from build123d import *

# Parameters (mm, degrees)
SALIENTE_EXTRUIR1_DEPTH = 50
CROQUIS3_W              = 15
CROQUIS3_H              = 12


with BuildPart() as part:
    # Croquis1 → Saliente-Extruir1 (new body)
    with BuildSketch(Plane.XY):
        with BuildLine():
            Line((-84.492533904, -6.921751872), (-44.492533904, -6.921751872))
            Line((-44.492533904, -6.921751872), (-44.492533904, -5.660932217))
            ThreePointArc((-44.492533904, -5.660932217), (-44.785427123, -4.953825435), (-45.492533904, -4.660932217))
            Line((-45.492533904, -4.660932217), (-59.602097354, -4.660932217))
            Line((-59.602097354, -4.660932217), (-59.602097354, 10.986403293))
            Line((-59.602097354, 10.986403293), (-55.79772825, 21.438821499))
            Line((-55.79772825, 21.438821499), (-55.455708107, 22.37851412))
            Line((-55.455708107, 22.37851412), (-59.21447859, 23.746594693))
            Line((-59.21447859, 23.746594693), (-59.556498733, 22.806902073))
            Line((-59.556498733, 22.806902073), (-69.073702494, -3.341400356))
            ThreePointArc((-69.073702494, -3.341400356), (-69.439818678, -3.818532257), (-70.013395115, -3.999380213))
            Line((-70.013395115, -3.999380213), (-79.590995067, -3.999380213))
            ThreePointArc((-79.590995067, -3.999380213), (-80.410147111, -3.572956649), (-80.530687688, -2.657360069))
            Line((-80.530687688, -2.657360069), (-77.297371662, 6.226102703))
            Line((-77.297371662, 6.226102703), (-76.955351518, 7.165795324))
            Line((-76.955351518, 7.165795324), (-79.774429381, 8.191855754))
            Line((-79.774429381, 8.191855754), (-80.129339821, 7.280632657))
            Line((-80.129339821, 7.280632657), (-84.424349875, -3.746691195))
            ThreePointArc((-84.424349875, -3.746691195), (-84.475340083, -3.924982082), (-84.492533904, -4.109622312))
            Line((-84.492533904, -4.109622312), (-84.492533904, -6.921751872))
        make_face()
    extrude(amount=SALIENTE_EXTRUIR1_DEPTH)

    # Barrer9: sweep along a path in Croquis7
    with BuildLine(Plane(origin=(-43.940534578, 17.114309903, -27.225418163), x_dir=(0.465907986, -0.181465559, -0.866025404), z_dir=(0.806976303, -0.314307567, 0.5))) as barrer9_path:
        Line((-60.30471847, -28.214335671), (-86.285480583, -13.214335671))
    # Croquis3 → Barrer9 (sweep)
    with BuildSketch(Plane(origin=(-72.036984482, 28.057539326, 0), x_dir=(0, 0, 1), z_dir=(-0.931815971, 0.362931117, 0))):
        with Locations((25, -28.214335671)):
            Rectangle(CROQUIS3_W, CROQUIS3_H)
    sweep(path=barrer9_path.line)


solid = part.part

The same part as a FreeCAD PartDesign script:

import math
import FreeCAD as App
import Part
import Sketcher
Q = App.Units.Quantity

doc = App.newDocument("Part")
params = doc.addObject("Spreadsheet::Sheet", "Params")
for row, (alias, value) in enumerate([
    ("sketch1_radius", "1 mm"),
    ("sketch1_width", "40 mm"),
    ("sketch1_length", "1 mm"),
    ("sketch1_length2", "4 mm"),
    ("sketch1_length3", "3 mm"),
    ("pad1_length", "50 mm"),
    ("sketch2_width", "15 mm"),
    ("sketch2_height", "12 mm"),
    ("sketch3_length", "30 mm"),
], start=1):
    params.set(f"A{row}", alias)
    params.set(f"B{row}", "=" + value)
    params.setAlias(f"B{row}", alias)

body = doc.addObject("PartDesign::Body", "Body")

# Sketch on XY plane
sketch1 = doc.addObject("Sketcher::SketchObject", "Sketch")
body.addObject(sketch1)
sketch1.AttachmentSupport = (doc.XY_Plane, [""])
sketch1.MapMode = "FlatFace"
sketch1.addGeometry(Part.LineSegment(App.Vector(-84.49, -6.92, 0), App.Vector(-44.49, -6.92, 0)), False)
sketch1.addGeometry(Part.LineSegment(App.Vector(-44.49, -6.92, 0), App.Vector(-44.49, -5.66, 0)), False)
sketch1.addGeometry(Part.ArcOfCircle(Part.Circle(App.Vector(-45.49, -5.66, 0), App.Vector(0, 0, 1), 1), math.radians(0), math.radians(90)), False)
sketch1.addGeometry(Part.LineSegment(App.Vector(-45.49, -4.66, 0), App.Vector(-59.6, -4.66, 0)), False)
sketch1.addGeometry(Part.LineSegment(App.Vector(-59.6, -4.66, 0), App.Vector(-59.6, 10.99, 0)), False)
sketch1.addGeometry(Part.LineSegment(App.Vector(-59.6, 10.99, 0), App.Vector(-55.8, 21.44, 0)), False)
sketch1.addGeometry(Part.LineSegment(App.Vector(-55.8, 21.44, 0), App.Vector(-55.46, 22.38, 0)), False)
sketch1.addGeometry(Part.LineSegment(App.Vector(-55.46, 22.38, 0), App.Vector(-59.21, 23.75, 0)), False)
sketch1.addGeometry(Part.LineSegment(App.Vector(-59.21, 23.75, 0), App.Vector(-59.56, 22.81, 0)), False)
sketch1.addGeometry(Part.LineSegment(App.Vector(-59.56, 22.81, 0), App.Vector(-69.07, -3.34, 0)), False)
sketch1.addGeometry(Part.ArcOfCircle(Part.Circle(App.Vector(-70.01, -3, 0), App.Vector(0, 0, 1), 1), math.radians(-90), math.radians(-20)), False)
sketch1.addGeometry(Part.LineSegment(App.Vector(-70.01, -4, 0), App.Vector(-79.59, -4, 0)), False)
sketch1.addGeometry(Part.ArcOfCircle(Part.Circle(App.Vector(-79.59, -3, 0), App.Vector(0, 0, 1), 1), math.radians(160), math.radians(270)), False)
sketch1.addGeometry(Part.LineSegment(App.Vector(-80.53, -2.66, 0), App.Vector(-77.3, 6.23, 0)), False)
sketch1.addGeometry(Part.LineSegment(App.Vector(-77.3, 6.23, 0), App.Vector(-76.96, 7.17, 0)), False)
sketch1.addGeometry(Part.LineSegment(App.Vector(-76.96, 7.17, 0), App.Vector(-79.77, 8.19, 0)), False)
sketch1.addGeometry(Part.LineSegment(App.Vector(-79.77, 8.19, 0), App.Vector(-80.13, 7.28, 0)), False)
sketch1.addGeometry(Part.LineSegment(App.Vector(-80.13, 7.28, 0), App.Vector(-84.42, -3.75, 0)), False)
sketch1.addGeometry(Part.ArcOfCircle(Part.Circle(App.Vector(-83.49, -4.11, 0), App.Vector(0, 0, 1), 1), math.radians(159), math.radians(180)), False)
sketch1.addGeometry(Part.LineSegment(App.Vector(-84.49, -4.11, 0), App.Vector(-84.49, -6.92, 0)), False)
sketch1.addConstraint(Sketcher.Constraint("Coincident", 0, 2, 1, 1))
sketch1.addConstraint(Sketcher.Constraint("Tangent", 1, 2, 2, 1))
sketch1.addConstraint(Sketcher.Constraint("Tangent", 2, 2, 3, 1))
sketch1.addConstraint(Sketcher.Constraint("Coincident", 3, 2, 4, 1))
sketch1.addConstraint(Sketcher.Constraint("Coincident", 4, 2, 5, 1))
sketch1.addConstraint(Sketcher.Constraint("Coincident", 5, 2, 6, 1))
sketch1.addConstraint(Sketcher.Constraint("Coincident", 6, 2, 7, 1))
sketch1.addConstraint(Sketcher.Constraint("Coincident", 7, 2, 8, 1))
sketch1.addConstraint(Sketcher.Constraint("Coincident", 8, 2, 9, 1))
sketch1.addConstraint(Sketcher.Constraint("Tangent", 9, 2, 10, 2))
sketch1.addConstraint(Sketcher.Constraint("Tangent", 10, 1, 11, 1))
sketch1.addConstraint(Sketcher.Constraint("Tangent", 11, 2, 12, 2))
sketch1.addConstraint(Sketcher.Constraint("Tangent", 12, 1, 13, 1))
sketch1.addConstraint(Sketcher.Constraint("Coincident", 13, 2, 14, 1))
sketch1.addConstraint(Sketcher.Constraint("Coincident", 14, 2, 15, 1))
sketch1.addConstraint(Sketcher.Constraint("Coincident", 15, 2, 16, 1))
sketch1.addConstraint(Sketcher.Constraint("Coincident", 16, 2, 17, 1))
sketch1.addConstraint(Sketcher.Constraint("Tangent", 17, 2, 18, 1))
sketch1.addConstraint(Sketcher.Constraint("Tangent", 18, 2, 19, 1))
sketch1.addConstraint(Sketcher.Constraint("Coincident", 19, 2, 0, 1))
sketch1.addConstraint(Sketcher.Constraint("Horizontal", 0))
sketch1.addConstraint(Sketcher.Constraint("Vertical", 1))
sketch1.addConstraint(Sketcher.Constraint("Horizontal", 3))
sketch1.addConstraint(Sketcher.Constraint("Vertical", 4))
sketch1.addConstraint(Sketcher.Constraint("Horizontal", 11))
sketch1.addConstraint(Sketcher.Constraint("Vertical", 19))
sketch1.addConstraint(Sketcher.Constraint("Equal", 2, 10))
sketch1.addConstraint(Sketcher.Constraint("Equal", 10, 12))
sketch1.addConstraint(Sketcher.Constraint("Equal", 12, 18))
sketch1.addConstraint(Sketcher.Constraint("Parallel", 5, 6))
sketch1.addConstraint(Sketcher.Constraint("Perpendicular", 6, 7))
sketch1.addConstraint(Sketcher.Constraint("Perpendicular", 7, 8))
sketch1.addConstraint(Sketcher.Constraint("Parallel", 8, 9))
sketch1.addConstraint(Sketcher.Constraint("Parallel", 9, 13))
sketch1.addConstraint(Sketcher.Constraint("Parallel", 13, 14))
sketch1.addConstraint(Sketcher.Constraint("Perpendicular", 14, 15))
sketch1.addConstraint(Sketcher.Constraint("Parallel", 16, 17))
sketch1.addConstraint(Sketcher.Constraint("Equal", 6, 8))
sketch1.addConstraint(Sketcher.Constraint("Equal", 8, 14))
sketch1.addConstraint(Sketcher.Constraint("Radius", 2, Q("1 mm")))
sketch1.addConstraint(Sketcher.Constraint("DistanceX", 0, 1, 0, 2, Q("40 mm")))
sketch1.addConstraint(Sketcher.Constraint("Angle", 5, Q("70 deg")))
sketch1.addConstraint(Sketcher.Constraint("Distance", 6, Q("1 mm")))
sketch1.addConstraint(Sketcher.Constraint("Distance", 7, Q("4 mm")))
sketch1.addConstraint(Sketcher.Constraint("Distance", 15, Q("3 mm")))
sketch1.addConstraint(Sketcher.Constraint("DistanceX", 11, 2, 11, 1, Q("9.5776 mm")))
sketch1.addConstraint(Sketcher.Constraint("Distance", 16, Q("0.9779 mm")))
sketch1.addConstraint(Sketcher.Constraint("DistanceY", 1, 1, 1, 2, Q("1.26082 mm")))
sketch1.addConstraint(Sketcher.Constraint("DistanceY", 19, 2, 19, 1, Q("2.81213 mm")))
sketch1.addConstraint(Sketcher.Constraint("DistanceX", 8, 2, -1, 1, Q("59.556499 mm")))
sketch1.addConstraint(Sketcher.Constraint("DistanceY", 9, 2, -1, 1, Q("3.3414 mm")))
sketch1.addConstraint(Sketcher.Constraint("DistanceY", 10, 3, 5, 2, Q("24.438202 mm")))
sketch1.addConstraint(Sketcher.Constraint("DistanceX", 4, 2, 8, 2, Q("0.045599 mm")))
sketch1.addConstraint(Sketcher.Constraint("Distance", 17, Q("11.834229 mm")))
sketch1.addConstraint(Sketcher.Constraint("DistanceX", 3, 2, 3, 1, Q("14.109563 mm")))
sketch1.addConstraint(Sketcher.Constraint("DistanceY", 4, 1, 4, 2, Q("15.647336 mm")))
sketch1.setExpression("Constraints[39]", "Params.sketch1_radius")
sketch1.setExpression("Constraints[40]", "Params.sketch1_width")
sketch1.setExpression("Constraints[42]", "Params.sketch1_length")
sketch1.setExpression("Constraints[43]", "Params.sketch1_length2")
sketch1.setExpression("Constraints[44]", "Params.sketch1_length3")
pad1 = doc.addObject("PartDesign::Pad", "Pad")
body.addObject(pad1)
pad1.Profile = sketch1
pad1.setExpression("Length", "Params.pad1_length")

# Sketch on an angled plane
sketch2 = doc.addObject("Sketcher::SketchObject", "Sketch001")
body.addObject(sketch2)
sketch2.Placement = App.Placement(App.Vector(-72.036984, 28.057539, 0), App.Rotation(App.Vector(0, 0, 1), App.Vector(0.362931117, 0.931815971, 0), App.Vector(-0.931815971, 0.362931117, 0), "ZXY"))
sketch2.addGeometry(Part.LineSegment(App.Vector(18, -22, 0), App.Vector(18, -34, 0)), False)
sketch2.addGeometry(Part.LineSegment(App.Vector(18, -34, 0), App.Vector(32, -34, 0)), False)
sketch2.addGeometry(Part.LineSegment(App.Vector(32, -34, 0), App.Vector(32, -22, 0)), False)
sketch2.addGeometry(Part.LineSegment(App.Vector(32, -22, 0), App.Vector(18, -22, 0)), False)
sketch2.addConstraint(Sketcher.Constraint("Coincident", 0, 2, 1, 1))
sketch2.addConstraint(Sketcher.Constraint("Coincident", 1, 2, 2, 1))
sketch2.addConstraint(Sketcher.Constraint("Coincident", 2, 2, 3, 1))
sketch2.addConstraint(Sketcher.Constraint("Coincident", 3, 2, 0, 1))
sketch2.addConstraint(Sketcher.Constraint("Vertical", 0))
sketch2.addConstraint(Sketcher.Constraint("Horizontal", 1))
sketch2.addConstraint(Sketcher.Constraint("Vertical", 2))
sketch2.addConstraint(Sketcher.Constraint("Horizontal", 3))
sketch2.addConstraint(Sketcher.Constraint("DistanceX", 1, 1, 1, 2, Q("15 mm")))
sketch2.addConstraint(Sketcher.Constraint("DistanceY", 0, 2, 0, 1, Q("12 mm")))
sketch2.addConstraint(Sketcher.Constraint("DistanceX", -1, 1, 0, 2, Q("17.5 mm")))
sketch2.addConstraint(Sketcher.Constraint("DistanceY", 0, 2, -1, 1, Q("34.214336 mm")))
sketch2.setExpression("Constraints[8]", "Params.sketch2_width")
sketch2.setExpression("Constraints[9]", "Params.sketch2_height")

# Sketch on an angled plane
sketch3 = doc.addObject("Sketcher::SketchObject", "Sketch002")
body.addObject(sketch3)
sketch3.Placement = App.Placement(App.Vector(0, -11.242684, 9.339849), App.Rotation(App.Vector(0, 0.639010499, 0.769198012), App.Vector(0.999999999, 0, 0), App.Vector(0, 0.769198012, -0.639010499), "ZXY"))
sketch3.addGeometry(Part.LineSegment(App.Vector(20, -82, 0), App.Vector(50, -89, 0)), False)
sketch3.addConstraint(Sketcher.Constraint("Distance", 0, Q("30 mm")))
sketch3.addConstraint(Sketcher.Constraint("DistanceX", -1, 1, 0, 2, Q("49.610309 mm")))
sketch3.addConstraint(Sketcher.Constraint("DistanceX", -1, 1, 0, 1, Q("20.359063 mm")))
sketch3.addConstraint(Sketcher.Constraint("DistanceY", 0, 1, -1, 1, Q("82.276845 mm")))
sketch3.setExpression("Constraints[0]", "Params.sketch3_length")
doc.recompute()

additivepipe = doc.addObject("PartDesign::AdditivePipe", "AdditivePipe")
body.addObject(additivepipe)
additivepipe.Profile = sketch2
additivepipe.Spine = (sketch3, ["Edge1"])

doc.recompute()
